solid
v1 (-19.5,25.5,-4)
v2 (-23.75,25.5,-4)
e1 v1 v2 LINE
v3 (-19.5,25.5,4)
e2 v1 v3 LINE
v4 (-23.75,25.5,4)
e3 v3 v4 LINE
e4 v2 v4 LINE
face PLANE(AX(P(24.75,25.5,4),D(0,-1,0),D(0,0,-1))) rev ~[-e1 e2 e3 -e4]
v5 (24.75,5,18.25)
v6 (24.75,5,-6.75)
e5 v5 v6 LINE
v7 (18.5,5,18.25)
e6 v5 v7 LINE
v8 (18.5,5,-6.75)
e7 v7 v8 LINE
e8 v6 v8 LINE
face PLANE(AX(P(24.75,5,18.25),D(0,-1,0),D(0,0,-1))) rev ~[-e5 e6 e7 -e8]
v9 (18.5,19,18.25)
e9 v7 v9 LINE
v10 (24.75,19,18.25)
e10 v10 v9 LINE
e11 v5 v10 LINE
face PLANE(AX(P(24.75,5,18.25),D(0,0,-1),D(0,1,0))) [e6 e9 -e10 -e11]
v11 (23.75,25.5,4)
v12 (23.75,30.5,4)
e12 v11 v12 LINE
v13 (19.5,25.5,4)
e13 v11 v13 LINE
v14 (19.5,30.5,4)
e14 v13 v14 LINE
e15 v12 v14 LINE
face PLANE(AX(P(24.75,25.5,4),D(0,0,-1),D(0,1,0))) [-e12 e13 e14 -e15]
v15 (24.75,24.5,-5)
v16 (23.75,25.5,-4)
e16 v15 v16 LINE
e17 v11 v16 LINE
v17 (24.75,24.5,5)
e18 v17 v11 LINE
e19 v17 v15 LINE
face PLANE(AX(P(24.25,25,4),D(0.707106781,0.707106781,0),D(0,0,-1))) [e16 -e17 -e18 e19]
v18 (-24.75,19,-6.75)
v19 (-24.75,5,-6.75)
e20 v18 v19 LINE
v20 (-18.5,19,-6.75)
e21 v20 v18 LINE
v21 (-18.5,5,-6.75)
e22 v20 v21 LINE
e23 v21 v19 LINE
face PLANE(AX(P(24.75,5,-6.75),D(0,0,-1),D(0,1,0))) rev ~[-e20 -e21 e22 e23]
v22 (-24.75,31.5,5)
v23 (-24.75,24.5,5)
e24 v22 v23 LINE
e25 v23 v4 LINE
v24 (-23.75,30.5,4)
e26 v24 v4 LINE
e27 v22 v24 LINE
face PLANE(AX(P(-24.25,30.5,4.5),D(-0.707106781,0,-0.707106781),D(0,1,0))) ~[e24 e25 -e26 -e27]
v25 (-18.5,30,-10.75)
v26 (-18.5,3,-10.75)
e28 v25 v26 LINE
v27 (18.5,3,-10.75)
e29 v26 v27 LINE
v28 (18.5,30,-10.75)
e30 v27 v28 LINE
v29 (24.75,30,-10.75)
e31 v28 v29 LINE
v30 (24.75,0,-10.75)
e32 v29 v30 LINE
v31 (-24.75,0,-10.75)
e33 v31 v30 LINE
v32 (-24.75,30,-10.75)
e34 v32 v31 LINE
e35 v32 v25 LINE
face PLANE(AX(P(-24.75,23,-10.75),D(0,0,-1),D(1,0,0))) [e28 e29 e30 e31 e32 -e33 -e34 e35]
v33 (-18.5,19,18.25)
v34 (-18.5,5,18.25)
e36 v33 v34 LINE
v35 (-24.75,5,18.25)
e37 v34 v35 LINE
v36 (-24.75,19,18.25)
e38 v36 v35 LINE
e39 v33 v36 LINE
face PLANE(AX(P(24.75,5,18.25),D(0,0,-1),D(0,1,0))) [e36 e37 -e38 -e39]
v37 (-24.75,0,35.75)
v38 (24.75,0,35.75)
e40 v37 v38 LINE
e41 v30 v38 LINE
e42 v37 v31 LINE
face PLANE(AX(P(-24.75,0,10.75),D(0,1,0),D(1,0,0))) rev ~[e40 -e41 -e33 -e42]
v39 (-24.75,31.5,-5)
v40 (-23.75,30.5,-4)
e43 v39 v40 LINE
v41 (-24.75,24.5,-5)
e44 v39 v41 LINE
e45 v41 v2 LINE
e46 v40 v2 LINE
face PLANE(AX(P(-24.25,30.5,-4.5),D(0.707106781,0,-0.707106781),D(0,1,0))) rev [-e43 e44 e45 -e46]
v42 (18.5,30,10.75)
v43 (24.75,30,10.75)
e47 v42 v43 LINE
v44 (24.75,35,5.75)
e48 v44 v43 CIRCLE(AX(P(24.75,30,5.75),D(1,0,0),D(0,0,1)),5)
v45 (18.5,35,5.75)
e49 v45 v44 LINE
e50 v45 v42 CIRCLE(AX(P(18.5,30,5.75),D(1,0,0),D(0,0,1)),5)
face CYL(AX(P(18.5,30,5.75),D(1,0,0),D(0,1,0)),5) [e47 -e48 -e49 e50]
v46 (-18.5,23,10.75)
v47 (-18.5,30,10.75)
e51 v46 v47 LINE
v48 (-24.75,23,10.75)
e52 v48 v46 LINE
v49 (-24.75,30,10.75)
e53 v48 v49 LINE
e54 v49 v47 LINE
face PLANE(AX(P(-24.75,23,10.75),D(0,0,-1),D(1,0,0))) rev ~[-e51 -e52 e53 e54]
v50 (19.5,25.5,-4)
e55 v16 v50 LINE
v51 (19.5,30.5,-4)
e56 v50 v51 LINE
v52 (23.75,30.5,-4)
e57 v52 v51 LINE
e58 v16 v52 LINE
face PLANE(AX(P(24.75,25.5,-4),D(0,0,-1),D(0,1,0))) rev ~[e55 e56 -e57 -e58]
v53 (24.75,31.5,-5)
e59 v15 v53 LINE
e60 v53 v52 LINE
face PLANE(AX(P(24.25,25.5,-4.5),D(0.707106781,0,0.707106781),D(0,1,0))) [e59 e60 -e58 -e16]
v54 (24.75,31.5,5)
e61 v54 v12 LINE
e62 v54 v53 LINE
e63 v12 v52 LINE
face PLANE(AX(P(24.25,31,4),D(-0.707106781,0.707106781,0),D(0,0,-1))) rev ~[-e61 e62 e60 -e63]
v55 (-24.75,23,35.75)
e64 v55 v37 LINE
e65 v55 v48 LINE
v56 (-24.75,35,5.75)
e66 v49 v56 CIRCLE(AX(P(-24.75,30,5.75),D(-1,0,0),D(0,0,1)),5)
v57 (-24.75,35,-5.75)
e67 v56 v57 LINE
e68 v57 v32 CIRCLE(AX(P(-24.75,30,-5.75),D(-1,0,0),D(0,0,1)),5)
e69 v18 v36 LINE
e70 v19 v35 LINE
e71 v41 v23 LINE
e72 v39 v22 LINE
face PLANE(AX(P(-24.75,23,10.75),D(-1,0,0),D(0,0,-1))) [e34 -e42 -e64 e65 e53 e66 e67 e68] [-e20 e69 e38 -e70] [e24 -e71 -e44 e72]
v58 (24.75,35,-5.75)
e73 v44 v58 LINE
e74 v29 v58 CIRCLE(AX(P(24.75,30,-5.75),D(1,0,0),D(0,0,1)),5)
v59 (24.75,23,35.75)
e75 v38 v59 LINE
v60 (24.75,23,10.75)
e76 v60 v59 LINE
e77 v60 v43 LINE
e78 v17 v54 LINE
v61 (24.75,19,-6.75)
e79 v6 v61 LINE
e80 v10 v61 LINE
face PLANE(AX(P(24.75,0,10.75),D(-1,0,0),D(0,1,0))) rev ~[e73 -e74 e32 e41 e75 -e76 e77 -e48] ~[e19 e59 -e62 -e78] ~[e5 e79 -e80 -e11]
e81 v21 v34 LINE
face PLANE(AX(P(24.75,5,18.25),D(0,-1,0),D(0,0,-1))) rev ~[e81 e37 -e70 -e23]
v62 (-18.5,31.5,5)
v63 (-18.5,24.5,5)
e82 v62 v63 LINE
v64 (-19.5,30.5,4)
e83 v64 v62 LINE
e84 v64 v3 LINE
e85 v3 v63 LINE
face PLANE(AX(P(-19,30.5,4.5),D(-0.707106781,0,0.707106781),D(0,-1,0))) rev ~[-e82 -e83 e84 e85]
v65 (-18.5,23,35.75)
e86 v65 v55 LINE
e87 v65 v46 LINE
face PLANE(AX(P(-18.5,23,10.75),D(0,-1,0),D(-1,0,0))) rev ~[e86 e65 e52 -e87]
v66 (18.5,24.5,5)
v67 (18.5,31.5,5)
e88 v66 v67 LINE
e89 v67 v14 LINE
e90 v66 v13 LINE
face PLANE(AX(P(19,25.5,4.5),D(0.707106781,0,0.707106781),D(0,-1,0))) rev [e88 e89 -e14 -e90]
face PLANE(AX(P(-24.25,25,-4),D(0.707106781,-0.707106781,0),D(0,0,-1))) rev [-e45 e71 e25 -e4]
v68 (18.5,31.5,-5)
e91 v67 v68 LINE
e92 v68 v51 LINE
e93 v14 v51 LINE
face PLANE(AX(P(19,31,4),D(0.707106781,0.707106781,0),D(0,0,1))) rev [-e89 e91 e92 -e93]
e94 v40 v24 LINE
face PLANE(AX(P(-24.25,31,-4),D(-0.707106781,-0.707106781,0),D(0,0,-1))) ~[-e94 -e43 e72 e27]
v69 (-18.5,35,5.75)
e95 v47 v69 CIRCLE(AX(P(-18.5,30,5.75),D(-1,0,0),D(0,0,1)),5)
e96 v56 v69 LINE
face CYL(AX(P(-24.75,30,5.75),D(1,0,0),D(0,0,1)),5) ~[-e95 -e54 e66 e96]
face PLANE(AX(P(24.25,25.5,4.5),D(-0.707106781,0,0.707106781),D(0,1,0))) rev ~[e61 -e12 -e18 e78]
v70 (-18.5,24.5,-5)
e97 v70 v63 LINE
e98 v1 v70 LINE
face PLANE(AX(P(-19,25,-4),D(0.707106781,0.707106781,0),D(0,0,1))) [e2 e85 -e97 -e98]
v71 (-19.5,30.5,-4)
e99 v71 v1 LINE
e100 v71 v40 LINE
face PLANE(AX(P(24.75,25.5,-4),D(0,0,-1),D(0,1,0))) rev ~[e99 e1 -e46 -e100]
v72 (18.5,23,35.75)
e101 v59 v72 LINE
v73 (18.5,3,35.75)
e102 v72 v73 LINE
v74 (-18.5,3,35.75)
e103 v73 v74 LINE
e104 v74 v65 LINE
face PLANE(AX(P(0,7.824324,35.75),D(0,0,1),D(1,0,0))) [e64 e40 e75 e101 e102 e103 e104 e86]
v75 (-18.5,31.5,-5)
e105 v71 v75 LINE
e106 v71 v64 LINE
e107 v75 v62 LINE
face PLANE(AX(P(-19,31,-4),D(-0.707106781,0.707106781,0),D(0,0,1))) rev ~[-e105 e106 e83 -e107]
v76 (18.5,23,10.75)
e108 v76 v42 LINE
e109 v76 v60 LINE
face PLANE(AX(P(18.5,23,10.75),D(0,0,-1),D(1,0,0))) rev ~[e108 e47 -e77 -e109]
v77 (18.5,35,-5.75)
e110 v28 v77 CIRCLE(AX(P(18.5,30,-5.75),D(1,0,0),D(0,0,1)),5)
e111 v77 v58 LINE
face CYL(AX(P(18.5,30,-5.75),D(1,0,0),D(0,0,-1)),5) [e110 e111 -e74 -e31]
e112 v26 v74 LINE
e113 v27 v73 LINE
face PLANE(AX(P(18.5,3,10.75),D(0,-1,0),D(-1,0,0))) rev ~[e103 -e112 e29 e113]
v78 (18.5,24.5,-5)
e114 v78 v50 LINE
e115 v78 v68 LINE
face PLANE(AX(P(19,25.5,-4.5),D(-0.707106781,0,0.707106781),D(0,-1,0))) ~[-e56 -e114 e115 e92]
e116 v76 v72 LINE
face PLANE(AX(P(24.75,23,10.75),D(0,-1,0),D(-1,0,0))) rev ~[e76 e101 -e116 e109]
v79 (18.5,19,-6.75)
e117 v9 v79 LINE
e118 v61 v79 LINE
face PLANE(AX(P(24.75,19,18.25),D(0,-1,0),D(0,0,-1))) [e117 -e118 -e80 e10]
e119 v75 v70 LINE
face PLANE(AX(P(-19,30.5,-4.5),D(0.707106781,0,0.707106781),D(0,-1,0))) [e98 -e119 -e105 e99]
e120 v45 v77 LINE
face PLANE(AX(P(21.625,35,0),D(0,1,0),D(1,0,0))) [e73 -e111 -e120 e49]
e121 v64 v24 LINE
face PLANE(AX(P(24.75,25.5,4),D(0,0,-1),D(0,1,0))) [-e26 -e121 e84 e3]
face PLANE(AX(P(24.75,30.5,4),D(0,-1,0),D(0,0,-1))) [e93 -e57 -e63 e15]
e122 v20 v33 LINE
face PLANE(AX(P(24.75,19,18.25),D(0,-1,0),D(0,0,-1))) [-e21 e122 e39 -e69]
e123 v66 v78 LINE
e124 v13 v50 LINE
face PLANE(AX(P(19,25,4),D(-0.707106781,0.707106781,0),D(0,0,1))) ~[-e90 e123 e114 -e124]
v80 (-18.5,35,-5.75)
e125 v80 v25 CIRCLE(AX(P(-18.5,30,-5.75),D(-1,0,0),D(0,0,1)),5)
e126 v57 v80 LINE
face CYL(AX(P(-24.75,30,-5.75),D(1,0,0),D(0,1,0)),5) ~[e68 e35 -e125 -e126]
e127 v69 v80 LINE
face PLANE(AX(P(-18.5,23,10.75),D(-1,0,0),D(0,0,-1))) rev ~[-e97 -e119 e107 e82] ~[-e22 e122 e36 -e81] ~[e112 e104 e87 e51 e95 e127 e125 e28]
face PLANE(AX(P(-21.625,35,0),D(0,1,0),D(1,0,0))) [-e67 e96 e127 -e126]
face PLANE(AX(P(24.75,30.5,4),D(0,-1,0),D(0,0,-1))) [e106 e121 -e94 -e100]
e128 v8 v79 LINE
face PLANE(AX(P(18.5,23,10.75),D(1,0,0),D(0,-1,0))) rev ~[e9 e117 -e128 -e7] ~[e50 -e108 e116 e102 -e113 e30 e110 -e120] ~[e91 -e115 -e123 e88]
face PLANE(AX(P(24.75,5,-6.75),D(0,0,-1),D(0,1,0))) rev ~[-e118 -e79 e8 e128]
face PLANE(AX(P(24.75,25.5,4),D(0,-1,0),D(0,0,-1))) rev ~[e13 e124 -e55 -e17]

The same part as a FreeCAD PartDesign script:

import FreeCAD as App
import Part
import Sketcher
Q = App.Units.Quantity


def edges_at(feature, points):
    """Names of the edges that pass closest to the given points."""
    edges = feature.Shape.Edges
    near = lambda p: min(range(len(edges)), key=lambda i: edges[i].distToShape(Part.Vertex(*p))[0])
    return sorted({f"Edge{near(p) + 1}" for p in points})


def add_polygon(sketch, points):
    """Adds a closed chain of lines whose ends are joined by coincident constraints."""
    first, n = sketch.GeometryCount, len(points)
    for a, b in zip(points, points[1:] + points[:1]):
        sketch.addGeometry(Part.LineSegment(App.Vector(*a, 0), App.Vector(*b, 0)), False)
    for i in range(n):
        sketch.addConstraint(Sketcher.Constraint("Coincident", first + i, 2, first + (i + 1) % n, 1))

doc = App.newDocument("Part")
body = doc.addObject("PartDesign::Body", "Body")

# Sketch on XZ plane
sketch1 = doc.addObject("Sketcher::SketchObject", "Sketch")
body.addObject(sketch1)
sketch1.AttachmentSupport = (doc.XZ_Plane, [""])
sketch1.MapMode = "FlatFace"
add_polygon(sketch1, [(-24.75, -10.75), (-24.75, 10.75), (24.75, 10.75), (24.75, -10.75)])  # lines 0-3
sketch1.addConstraint(Sketcher.Constraint("Vertical", 0))
sketch1.addConstraint(Sketcher.Constraint("Horizontal", 1))
sketch1.addConstraint(Sketcher.Constraint("Vertical", 2))
sketch1.addConstraint(Sketcher.Constraint("Horizontal", 3))
sketch1.addConstraint(Sketcher.Constraint("Symmetric", 0, 2, 2, 2, -1, 1))
sketch1.addConstraint(Sketcher.Constraint("DistanceX", 1, 1, 1, 2, Q("49.5 mm")))
sketch1.addConstraint(Sketcher.Constraint("DistanceY", 0, 1, 0, 2, Q("21.5 mm")))
pad1 = doc.addObject("PartDesign::Pad", "Pad")
body.addObject(pad1)
pad1.Profile = sketch1
pad1.Length = 3
pad1.Reversed = True

# Sketch on XZ plane
sketch2 = doc.addObject("Sketcher::SketchObject", "Sketch001")
body.addObject(sketch2)
sketch2.AttachmentSupport = (doc.XZ_Plane, [""])
sketch2.MapMode = "FlatFace"
sketch2.AttachmentOffset = App.Placement(App.Vector(0, 0, -3), App.Rotation())
add_polygon(sketch2, [(-24.75, -10.75), (-24.75, 10.75), (-18.5, 10.75), (-18.5, -10.75)])  # lines 0-3
add_polygon(sketch2, [(18.5, -10.75), (18.5, 10.75), (24.75, 10.75), (24.75, -10.75)])  # lines 4-7
sketch2.addConstraint(Sketcher.Constraint("Vertical", 0))
sketch2.addConstraint(Sketcher.Constraint("Horizontal", 1))
sketch2.addConstraint(Sketcher.Constraint("Vertical", 2))
sketch2.addConstraint(Sketcher.Constraint("Horizontal", 3))
sketch2.addConstraint(Sketcher.Constraint("Vertical", 4))
sketch2.addConstraint(Sketcher.Constraint("Horizontal", 5))
sketch2.addConstraint(Sketcher.Constraint("Vertical", 6))
sketch2.addConstraint(Sketcher.Constraint("Horizontal", 7))
sketch2.addConstraint(Sketcher.Constraint("Symmetric", 2, 2, 4, 2, -1, 1))
sketch2.addConstraint(Sketcher.Constraint("Symmetric", 0, 2, 6, 2, -1, 1))
sketch2.addConstraint(Sketcher.Constraint("Horizontal", 1, 2, 4, 2))
sketch2.addConstraint(Sketcher.Constraint("DistanceY", 0, 1, 0, 2, Q("21.5 mm")))
sketch2.addConstraint(Sketcher.Constraint("DistanceX", 1, 2, 4, 2, Q("37 mm")))
sketch2.addConstraint(Sketcher.Constraint("DistanceX", 1, 1, 1, 2, Q("6.25 mm")))
pad2 = doc.addObject("PartDesign::Pad", "Pad001")
body.addObject(pad2)
pad2.Profile = sketch2
pad2.Length = 20
pad2.Reversed = True

# Sketch on XY plane
sketch3 = doc.addObject("Sketcher::SketchObject", "Sketch002")
body.addObject(sketch3)
sketch3.AttachmentSupport = (doc.XY_Plane, [""])
sketch3.MapMode = "FlatFace"
sketch3.AttachmentOffset = App.Placement(App.Vector(0, 0, 10.75), App.Rotation())
add_polygon(sketch3, [(-24.75, 0), (24.75, 0), (24.75, 23), (18.5, 23), (18.5, 3), (-18.5, 3), (-18.5, 23), (-24.75, 23)])  # lines 0-7
sketch3.addConstraint(Sketcher.Constraint("Horizontal", 0))
sketch3.addConstraint(Sketcher.Constraint("Vertical", 1))
sketch3.addConstraint(Sketcher.Constraint("Horizontal", 2))
sketch3.addConstraint(Sketcher.Constraint("Vertical", 3))
sketch3.addConstraint(Sketcher.Constraint("Horizontal", 4))
sketch3.addConstraint(Sketcher.Constraint("Vertical", 5))
sketch3.addConstraint(Sketcher.Constraint("Horizontal", 6))
sketch3.addConstraint(Sketcher.Constraint("Vertical", 7))
sketch3.addConstraint(Sketcher.Constraint("Symmetric", 0, 2, 7, 2, -1, 1))
sketch3.addConstraint(Sketcher.Constraint("Symmetric", 2, 2, 5, 2, -2))
sketch3.addConstraint(Sketcher.Constraint("DistanceX", 4, 2, 4, 1, Q("37 mm")))
sketch3.addConstraint(Sketcher.Constraint("DistanceY", 1, 1, 1, 2, Q("23 mm")))
sketch3.addConstraint(Sketcher.Constraint("DistanceY", 3, 2, 3, 1, Q("20 mm")))
sketch3.addConstraint(Sketcher.Constraint("DistanceX", 0, 1, 0, 2, Q("49.5 mm")))
pad3 = doc.addObject("PartDesign::Pad", "Pad002")
body.addObject(pad3)
pad3.Profile = sketch3
pad3.Length = 25

# Sketch on XZ plane
sketch4 = doc.addObject("Sketcher::SketchObject", "Sketch003")
body.addObject(sketch4)
sketch4.AttachmentSupport = (doc.XZ_Plane, [""])
sketch4.MapMode = "FlatFace"
sketch4.AttachmentOffset = App.Placement(App.Vector(0, 0, -23), App.Rotation())
add_polygon(sketch4, [(-24.75, -10.75), (-24.75, 10.75), (-18.5, 10.75), (-18.5, -10.75)])  # lines 0-3
add_polygon(sketch4, [(18.5, -10.75), (18.5, 10.75), (24.75, 10.75), (24.75, -10.75)])  # lines 4-7
sketch4.addConstraint(Sketcher.Constraint("Vertical", 0))
sketch4.addConstraint(Sketcher.Constraint("Horizontal", 1))
sketch4.addConstraint(Sketcher.Constraint("Vertical", 2))
sketch4.addConstraint(Sketcher.Constraint("Horizontal", 3))
sketch4.addConstraint(Sketcher.Constraint("Vertical", 4))
sketch4.addConstraint(Sketcher.Constraint("Horizontal", 5))
sketch4.addConstraint(Sketcher.Constraint("Vertical", 6))
sketch4.addConstraint(Sketcher.Constraint("Horizontal", 7))
sketch4.addConstraint(Sketcher.Constraint("Symmetric", 2, 2, 4, 2, -1, 1))
sketch4.addConstraint(Sketcher.Constraint("Symmetric", 0, 2, 6, 2, -1, 1))
sketch4.addConstraint(Sketcher.Constraint("Horizontal", 1, 2, 4, 2))
sketch4.addConstraint(Sketcher.Constraint("DistanceY", 0, 1, 0, 2, Q("21.5 mm")))
sketch4.addConstraint(Sketcher.Constraint("DistanceX", 1, 2, 4, 2, Q("37 mm")))
sketch4.addConstraint(Sketcher.Constraint("DistanceX", 1, 1, 1, 2, Q("6.25 mm")))
pad4 = doc.addObject("PartDesign::Pad", "Pad003")
body.addObject(pad4)
pad4.Profile = sketch4
pad4.Length = 12
pad4.Reversed = True

# Sketch on YZ plane
sketch5 = doc.addObject("Sketcher::SketchObject", "Sketch004")
body.addObject(sketch5)
sketch5.AttachmentSupport = (doc.YZ_Plane, [""])
sketch5.MapMode = "FlatFace"
sketch5.AttachmentOffset = App.Placement(App.Vector(0, 0, 24.75), App.Rotation())
add_polygon(sketch5, [(30.5, 4), (25.5, 4), (25.5, -4), (30.5, -4)])  # lines 0-3
sketch5.addConstraint(Sketcher.Constraint("Horizontal", 0))
sketch5.addConstraint(Sketcher.Constraint("Vertical", 1))
sketch5.addConstraint(Sketcher.Constraint("Horizontal", 2))
sketch5.addConstraint(Sketcher.Constraint("Vertical", 3))
sketch5.addConstraint(Sketcher.Constraint("DistanceX", 0, 2, 0, 1, Q("5 mm")))
sketch5.addConstraint(Sketcher.Constraint("DistanceY", 1, 2, 1, 1, Q("8 mm")))
sketch5.addConstraint(Sketcher.Constraint("DistanceY", -1, 1, 0, 2, Q("4 mm")))
sketch5.addConstraint(Sketcher.Constraint("DistanceX", -1, 1, 0, 2, Q("25.5 mm")))
pocket1 = doc.addObject("PartDesign::Pocket", "Pocket")
body.addObject(pocket1)
pocket1.Profile = sketch5
pocket1.Type = "ThroughAll"
doc.recompute()

fillet = doc.addObject("PartDesign::Fillet", "Fillet")
body.addObject(fillet)
fillet.Base = (pocket1, edges_at(pocket1, [(-21.625, 35, 10.75), (21.625, 35, 10.75)]))
fillet.Radius = 5
doc.recompute()

fillet2 = doc.addObject("PartDesign::Fillet", "Fillet001")
body.addObject(fillet2)
fillet2.Base = (fillet, edges_at(fillet, [(-21.625, 35, -10.75), (21.625, 35, -10.75)]))
fillet2.Radius = 5

# Sketch on YZ plane
sketch6 = doc.addObject("Sketcher::SketchObject", "Sketch005")
body.addObject(sketch6)
sketch6.AttachmentSupport = (doc.YZ_Plane, [""])
sketch6.MapMode = "FlatFace"
sketch6.AttachmentOffset = App.Placement(App.Vector(0, 0, 24.75), App.Rotation())
add_polygon(sketch6, [(19, 18.25), (5, 18.25), (5, -6.75), (19, -6.75)])  # lines 0-3
sketch6.addConstraint(Sketcher.Constraint("Horizontal", 0))
sketch6.addConstraint(Sketcher.Constraint("Vertical", 1))
sketch6.addConstraint(Sketcher.Constraint("Horizontal", 2))
sketch6.addConstraint(Sketcher.Constraint("Vertical", 3))
sketch6.addConstraint(Sketcher.Constraint("DistanceX", 0, 2, 0, 1, Q("14 mm")))
sketch6.addConstraint(Sketcher.Constraint("DistanceY", 1, 2, 1, 1, Q("25 mm")))
sketch6.addConstraint(Sketcher.Constraint("DistanceX", -1, 1, 0, 2, Q("5 mm")))
sketch6.addConstraint(Sketcher.Constraint("DistanceY", -1, 1, 0, 2, Q("18.25 mm")))
pocket2 = doc.addObject("PartDesign::Pocket", "Pocket001")
body.addObject(pocket2)
pocket2.Profile = sketch6
pocket2.Type = "ThroughAll"
doc.recompute()

chamfer = doc.addObject("PartDesign::Chamfer", "Chamfer")
body.addObject(chamfer)
chamfer.Base = (pocket2, edges_at(pocket2, [
    (18.5, 25.5, 0),
    (18.5, 28, -4),
    (18.5, 30.5, 0),
    (18.5, 28, 4),
    (-18.5, 28, 4),
    (-24.75, 28, 4),
    (-18.5, 30.5, 0),
    (-24.75, 30.5, 0),
    (-18.5, 28, -4),
    (-24.75, 28, -4),
    (-18.5, 25.5, 0),
    (-24.75, 25.5, 0),
    (24.75, 28, 4),
    (24.75, 25.5, 0),
    (24.75, 28, -4),
    (24.75, 30.5, 0),
]))
chamfer.Size = 1

doc.recompute()
